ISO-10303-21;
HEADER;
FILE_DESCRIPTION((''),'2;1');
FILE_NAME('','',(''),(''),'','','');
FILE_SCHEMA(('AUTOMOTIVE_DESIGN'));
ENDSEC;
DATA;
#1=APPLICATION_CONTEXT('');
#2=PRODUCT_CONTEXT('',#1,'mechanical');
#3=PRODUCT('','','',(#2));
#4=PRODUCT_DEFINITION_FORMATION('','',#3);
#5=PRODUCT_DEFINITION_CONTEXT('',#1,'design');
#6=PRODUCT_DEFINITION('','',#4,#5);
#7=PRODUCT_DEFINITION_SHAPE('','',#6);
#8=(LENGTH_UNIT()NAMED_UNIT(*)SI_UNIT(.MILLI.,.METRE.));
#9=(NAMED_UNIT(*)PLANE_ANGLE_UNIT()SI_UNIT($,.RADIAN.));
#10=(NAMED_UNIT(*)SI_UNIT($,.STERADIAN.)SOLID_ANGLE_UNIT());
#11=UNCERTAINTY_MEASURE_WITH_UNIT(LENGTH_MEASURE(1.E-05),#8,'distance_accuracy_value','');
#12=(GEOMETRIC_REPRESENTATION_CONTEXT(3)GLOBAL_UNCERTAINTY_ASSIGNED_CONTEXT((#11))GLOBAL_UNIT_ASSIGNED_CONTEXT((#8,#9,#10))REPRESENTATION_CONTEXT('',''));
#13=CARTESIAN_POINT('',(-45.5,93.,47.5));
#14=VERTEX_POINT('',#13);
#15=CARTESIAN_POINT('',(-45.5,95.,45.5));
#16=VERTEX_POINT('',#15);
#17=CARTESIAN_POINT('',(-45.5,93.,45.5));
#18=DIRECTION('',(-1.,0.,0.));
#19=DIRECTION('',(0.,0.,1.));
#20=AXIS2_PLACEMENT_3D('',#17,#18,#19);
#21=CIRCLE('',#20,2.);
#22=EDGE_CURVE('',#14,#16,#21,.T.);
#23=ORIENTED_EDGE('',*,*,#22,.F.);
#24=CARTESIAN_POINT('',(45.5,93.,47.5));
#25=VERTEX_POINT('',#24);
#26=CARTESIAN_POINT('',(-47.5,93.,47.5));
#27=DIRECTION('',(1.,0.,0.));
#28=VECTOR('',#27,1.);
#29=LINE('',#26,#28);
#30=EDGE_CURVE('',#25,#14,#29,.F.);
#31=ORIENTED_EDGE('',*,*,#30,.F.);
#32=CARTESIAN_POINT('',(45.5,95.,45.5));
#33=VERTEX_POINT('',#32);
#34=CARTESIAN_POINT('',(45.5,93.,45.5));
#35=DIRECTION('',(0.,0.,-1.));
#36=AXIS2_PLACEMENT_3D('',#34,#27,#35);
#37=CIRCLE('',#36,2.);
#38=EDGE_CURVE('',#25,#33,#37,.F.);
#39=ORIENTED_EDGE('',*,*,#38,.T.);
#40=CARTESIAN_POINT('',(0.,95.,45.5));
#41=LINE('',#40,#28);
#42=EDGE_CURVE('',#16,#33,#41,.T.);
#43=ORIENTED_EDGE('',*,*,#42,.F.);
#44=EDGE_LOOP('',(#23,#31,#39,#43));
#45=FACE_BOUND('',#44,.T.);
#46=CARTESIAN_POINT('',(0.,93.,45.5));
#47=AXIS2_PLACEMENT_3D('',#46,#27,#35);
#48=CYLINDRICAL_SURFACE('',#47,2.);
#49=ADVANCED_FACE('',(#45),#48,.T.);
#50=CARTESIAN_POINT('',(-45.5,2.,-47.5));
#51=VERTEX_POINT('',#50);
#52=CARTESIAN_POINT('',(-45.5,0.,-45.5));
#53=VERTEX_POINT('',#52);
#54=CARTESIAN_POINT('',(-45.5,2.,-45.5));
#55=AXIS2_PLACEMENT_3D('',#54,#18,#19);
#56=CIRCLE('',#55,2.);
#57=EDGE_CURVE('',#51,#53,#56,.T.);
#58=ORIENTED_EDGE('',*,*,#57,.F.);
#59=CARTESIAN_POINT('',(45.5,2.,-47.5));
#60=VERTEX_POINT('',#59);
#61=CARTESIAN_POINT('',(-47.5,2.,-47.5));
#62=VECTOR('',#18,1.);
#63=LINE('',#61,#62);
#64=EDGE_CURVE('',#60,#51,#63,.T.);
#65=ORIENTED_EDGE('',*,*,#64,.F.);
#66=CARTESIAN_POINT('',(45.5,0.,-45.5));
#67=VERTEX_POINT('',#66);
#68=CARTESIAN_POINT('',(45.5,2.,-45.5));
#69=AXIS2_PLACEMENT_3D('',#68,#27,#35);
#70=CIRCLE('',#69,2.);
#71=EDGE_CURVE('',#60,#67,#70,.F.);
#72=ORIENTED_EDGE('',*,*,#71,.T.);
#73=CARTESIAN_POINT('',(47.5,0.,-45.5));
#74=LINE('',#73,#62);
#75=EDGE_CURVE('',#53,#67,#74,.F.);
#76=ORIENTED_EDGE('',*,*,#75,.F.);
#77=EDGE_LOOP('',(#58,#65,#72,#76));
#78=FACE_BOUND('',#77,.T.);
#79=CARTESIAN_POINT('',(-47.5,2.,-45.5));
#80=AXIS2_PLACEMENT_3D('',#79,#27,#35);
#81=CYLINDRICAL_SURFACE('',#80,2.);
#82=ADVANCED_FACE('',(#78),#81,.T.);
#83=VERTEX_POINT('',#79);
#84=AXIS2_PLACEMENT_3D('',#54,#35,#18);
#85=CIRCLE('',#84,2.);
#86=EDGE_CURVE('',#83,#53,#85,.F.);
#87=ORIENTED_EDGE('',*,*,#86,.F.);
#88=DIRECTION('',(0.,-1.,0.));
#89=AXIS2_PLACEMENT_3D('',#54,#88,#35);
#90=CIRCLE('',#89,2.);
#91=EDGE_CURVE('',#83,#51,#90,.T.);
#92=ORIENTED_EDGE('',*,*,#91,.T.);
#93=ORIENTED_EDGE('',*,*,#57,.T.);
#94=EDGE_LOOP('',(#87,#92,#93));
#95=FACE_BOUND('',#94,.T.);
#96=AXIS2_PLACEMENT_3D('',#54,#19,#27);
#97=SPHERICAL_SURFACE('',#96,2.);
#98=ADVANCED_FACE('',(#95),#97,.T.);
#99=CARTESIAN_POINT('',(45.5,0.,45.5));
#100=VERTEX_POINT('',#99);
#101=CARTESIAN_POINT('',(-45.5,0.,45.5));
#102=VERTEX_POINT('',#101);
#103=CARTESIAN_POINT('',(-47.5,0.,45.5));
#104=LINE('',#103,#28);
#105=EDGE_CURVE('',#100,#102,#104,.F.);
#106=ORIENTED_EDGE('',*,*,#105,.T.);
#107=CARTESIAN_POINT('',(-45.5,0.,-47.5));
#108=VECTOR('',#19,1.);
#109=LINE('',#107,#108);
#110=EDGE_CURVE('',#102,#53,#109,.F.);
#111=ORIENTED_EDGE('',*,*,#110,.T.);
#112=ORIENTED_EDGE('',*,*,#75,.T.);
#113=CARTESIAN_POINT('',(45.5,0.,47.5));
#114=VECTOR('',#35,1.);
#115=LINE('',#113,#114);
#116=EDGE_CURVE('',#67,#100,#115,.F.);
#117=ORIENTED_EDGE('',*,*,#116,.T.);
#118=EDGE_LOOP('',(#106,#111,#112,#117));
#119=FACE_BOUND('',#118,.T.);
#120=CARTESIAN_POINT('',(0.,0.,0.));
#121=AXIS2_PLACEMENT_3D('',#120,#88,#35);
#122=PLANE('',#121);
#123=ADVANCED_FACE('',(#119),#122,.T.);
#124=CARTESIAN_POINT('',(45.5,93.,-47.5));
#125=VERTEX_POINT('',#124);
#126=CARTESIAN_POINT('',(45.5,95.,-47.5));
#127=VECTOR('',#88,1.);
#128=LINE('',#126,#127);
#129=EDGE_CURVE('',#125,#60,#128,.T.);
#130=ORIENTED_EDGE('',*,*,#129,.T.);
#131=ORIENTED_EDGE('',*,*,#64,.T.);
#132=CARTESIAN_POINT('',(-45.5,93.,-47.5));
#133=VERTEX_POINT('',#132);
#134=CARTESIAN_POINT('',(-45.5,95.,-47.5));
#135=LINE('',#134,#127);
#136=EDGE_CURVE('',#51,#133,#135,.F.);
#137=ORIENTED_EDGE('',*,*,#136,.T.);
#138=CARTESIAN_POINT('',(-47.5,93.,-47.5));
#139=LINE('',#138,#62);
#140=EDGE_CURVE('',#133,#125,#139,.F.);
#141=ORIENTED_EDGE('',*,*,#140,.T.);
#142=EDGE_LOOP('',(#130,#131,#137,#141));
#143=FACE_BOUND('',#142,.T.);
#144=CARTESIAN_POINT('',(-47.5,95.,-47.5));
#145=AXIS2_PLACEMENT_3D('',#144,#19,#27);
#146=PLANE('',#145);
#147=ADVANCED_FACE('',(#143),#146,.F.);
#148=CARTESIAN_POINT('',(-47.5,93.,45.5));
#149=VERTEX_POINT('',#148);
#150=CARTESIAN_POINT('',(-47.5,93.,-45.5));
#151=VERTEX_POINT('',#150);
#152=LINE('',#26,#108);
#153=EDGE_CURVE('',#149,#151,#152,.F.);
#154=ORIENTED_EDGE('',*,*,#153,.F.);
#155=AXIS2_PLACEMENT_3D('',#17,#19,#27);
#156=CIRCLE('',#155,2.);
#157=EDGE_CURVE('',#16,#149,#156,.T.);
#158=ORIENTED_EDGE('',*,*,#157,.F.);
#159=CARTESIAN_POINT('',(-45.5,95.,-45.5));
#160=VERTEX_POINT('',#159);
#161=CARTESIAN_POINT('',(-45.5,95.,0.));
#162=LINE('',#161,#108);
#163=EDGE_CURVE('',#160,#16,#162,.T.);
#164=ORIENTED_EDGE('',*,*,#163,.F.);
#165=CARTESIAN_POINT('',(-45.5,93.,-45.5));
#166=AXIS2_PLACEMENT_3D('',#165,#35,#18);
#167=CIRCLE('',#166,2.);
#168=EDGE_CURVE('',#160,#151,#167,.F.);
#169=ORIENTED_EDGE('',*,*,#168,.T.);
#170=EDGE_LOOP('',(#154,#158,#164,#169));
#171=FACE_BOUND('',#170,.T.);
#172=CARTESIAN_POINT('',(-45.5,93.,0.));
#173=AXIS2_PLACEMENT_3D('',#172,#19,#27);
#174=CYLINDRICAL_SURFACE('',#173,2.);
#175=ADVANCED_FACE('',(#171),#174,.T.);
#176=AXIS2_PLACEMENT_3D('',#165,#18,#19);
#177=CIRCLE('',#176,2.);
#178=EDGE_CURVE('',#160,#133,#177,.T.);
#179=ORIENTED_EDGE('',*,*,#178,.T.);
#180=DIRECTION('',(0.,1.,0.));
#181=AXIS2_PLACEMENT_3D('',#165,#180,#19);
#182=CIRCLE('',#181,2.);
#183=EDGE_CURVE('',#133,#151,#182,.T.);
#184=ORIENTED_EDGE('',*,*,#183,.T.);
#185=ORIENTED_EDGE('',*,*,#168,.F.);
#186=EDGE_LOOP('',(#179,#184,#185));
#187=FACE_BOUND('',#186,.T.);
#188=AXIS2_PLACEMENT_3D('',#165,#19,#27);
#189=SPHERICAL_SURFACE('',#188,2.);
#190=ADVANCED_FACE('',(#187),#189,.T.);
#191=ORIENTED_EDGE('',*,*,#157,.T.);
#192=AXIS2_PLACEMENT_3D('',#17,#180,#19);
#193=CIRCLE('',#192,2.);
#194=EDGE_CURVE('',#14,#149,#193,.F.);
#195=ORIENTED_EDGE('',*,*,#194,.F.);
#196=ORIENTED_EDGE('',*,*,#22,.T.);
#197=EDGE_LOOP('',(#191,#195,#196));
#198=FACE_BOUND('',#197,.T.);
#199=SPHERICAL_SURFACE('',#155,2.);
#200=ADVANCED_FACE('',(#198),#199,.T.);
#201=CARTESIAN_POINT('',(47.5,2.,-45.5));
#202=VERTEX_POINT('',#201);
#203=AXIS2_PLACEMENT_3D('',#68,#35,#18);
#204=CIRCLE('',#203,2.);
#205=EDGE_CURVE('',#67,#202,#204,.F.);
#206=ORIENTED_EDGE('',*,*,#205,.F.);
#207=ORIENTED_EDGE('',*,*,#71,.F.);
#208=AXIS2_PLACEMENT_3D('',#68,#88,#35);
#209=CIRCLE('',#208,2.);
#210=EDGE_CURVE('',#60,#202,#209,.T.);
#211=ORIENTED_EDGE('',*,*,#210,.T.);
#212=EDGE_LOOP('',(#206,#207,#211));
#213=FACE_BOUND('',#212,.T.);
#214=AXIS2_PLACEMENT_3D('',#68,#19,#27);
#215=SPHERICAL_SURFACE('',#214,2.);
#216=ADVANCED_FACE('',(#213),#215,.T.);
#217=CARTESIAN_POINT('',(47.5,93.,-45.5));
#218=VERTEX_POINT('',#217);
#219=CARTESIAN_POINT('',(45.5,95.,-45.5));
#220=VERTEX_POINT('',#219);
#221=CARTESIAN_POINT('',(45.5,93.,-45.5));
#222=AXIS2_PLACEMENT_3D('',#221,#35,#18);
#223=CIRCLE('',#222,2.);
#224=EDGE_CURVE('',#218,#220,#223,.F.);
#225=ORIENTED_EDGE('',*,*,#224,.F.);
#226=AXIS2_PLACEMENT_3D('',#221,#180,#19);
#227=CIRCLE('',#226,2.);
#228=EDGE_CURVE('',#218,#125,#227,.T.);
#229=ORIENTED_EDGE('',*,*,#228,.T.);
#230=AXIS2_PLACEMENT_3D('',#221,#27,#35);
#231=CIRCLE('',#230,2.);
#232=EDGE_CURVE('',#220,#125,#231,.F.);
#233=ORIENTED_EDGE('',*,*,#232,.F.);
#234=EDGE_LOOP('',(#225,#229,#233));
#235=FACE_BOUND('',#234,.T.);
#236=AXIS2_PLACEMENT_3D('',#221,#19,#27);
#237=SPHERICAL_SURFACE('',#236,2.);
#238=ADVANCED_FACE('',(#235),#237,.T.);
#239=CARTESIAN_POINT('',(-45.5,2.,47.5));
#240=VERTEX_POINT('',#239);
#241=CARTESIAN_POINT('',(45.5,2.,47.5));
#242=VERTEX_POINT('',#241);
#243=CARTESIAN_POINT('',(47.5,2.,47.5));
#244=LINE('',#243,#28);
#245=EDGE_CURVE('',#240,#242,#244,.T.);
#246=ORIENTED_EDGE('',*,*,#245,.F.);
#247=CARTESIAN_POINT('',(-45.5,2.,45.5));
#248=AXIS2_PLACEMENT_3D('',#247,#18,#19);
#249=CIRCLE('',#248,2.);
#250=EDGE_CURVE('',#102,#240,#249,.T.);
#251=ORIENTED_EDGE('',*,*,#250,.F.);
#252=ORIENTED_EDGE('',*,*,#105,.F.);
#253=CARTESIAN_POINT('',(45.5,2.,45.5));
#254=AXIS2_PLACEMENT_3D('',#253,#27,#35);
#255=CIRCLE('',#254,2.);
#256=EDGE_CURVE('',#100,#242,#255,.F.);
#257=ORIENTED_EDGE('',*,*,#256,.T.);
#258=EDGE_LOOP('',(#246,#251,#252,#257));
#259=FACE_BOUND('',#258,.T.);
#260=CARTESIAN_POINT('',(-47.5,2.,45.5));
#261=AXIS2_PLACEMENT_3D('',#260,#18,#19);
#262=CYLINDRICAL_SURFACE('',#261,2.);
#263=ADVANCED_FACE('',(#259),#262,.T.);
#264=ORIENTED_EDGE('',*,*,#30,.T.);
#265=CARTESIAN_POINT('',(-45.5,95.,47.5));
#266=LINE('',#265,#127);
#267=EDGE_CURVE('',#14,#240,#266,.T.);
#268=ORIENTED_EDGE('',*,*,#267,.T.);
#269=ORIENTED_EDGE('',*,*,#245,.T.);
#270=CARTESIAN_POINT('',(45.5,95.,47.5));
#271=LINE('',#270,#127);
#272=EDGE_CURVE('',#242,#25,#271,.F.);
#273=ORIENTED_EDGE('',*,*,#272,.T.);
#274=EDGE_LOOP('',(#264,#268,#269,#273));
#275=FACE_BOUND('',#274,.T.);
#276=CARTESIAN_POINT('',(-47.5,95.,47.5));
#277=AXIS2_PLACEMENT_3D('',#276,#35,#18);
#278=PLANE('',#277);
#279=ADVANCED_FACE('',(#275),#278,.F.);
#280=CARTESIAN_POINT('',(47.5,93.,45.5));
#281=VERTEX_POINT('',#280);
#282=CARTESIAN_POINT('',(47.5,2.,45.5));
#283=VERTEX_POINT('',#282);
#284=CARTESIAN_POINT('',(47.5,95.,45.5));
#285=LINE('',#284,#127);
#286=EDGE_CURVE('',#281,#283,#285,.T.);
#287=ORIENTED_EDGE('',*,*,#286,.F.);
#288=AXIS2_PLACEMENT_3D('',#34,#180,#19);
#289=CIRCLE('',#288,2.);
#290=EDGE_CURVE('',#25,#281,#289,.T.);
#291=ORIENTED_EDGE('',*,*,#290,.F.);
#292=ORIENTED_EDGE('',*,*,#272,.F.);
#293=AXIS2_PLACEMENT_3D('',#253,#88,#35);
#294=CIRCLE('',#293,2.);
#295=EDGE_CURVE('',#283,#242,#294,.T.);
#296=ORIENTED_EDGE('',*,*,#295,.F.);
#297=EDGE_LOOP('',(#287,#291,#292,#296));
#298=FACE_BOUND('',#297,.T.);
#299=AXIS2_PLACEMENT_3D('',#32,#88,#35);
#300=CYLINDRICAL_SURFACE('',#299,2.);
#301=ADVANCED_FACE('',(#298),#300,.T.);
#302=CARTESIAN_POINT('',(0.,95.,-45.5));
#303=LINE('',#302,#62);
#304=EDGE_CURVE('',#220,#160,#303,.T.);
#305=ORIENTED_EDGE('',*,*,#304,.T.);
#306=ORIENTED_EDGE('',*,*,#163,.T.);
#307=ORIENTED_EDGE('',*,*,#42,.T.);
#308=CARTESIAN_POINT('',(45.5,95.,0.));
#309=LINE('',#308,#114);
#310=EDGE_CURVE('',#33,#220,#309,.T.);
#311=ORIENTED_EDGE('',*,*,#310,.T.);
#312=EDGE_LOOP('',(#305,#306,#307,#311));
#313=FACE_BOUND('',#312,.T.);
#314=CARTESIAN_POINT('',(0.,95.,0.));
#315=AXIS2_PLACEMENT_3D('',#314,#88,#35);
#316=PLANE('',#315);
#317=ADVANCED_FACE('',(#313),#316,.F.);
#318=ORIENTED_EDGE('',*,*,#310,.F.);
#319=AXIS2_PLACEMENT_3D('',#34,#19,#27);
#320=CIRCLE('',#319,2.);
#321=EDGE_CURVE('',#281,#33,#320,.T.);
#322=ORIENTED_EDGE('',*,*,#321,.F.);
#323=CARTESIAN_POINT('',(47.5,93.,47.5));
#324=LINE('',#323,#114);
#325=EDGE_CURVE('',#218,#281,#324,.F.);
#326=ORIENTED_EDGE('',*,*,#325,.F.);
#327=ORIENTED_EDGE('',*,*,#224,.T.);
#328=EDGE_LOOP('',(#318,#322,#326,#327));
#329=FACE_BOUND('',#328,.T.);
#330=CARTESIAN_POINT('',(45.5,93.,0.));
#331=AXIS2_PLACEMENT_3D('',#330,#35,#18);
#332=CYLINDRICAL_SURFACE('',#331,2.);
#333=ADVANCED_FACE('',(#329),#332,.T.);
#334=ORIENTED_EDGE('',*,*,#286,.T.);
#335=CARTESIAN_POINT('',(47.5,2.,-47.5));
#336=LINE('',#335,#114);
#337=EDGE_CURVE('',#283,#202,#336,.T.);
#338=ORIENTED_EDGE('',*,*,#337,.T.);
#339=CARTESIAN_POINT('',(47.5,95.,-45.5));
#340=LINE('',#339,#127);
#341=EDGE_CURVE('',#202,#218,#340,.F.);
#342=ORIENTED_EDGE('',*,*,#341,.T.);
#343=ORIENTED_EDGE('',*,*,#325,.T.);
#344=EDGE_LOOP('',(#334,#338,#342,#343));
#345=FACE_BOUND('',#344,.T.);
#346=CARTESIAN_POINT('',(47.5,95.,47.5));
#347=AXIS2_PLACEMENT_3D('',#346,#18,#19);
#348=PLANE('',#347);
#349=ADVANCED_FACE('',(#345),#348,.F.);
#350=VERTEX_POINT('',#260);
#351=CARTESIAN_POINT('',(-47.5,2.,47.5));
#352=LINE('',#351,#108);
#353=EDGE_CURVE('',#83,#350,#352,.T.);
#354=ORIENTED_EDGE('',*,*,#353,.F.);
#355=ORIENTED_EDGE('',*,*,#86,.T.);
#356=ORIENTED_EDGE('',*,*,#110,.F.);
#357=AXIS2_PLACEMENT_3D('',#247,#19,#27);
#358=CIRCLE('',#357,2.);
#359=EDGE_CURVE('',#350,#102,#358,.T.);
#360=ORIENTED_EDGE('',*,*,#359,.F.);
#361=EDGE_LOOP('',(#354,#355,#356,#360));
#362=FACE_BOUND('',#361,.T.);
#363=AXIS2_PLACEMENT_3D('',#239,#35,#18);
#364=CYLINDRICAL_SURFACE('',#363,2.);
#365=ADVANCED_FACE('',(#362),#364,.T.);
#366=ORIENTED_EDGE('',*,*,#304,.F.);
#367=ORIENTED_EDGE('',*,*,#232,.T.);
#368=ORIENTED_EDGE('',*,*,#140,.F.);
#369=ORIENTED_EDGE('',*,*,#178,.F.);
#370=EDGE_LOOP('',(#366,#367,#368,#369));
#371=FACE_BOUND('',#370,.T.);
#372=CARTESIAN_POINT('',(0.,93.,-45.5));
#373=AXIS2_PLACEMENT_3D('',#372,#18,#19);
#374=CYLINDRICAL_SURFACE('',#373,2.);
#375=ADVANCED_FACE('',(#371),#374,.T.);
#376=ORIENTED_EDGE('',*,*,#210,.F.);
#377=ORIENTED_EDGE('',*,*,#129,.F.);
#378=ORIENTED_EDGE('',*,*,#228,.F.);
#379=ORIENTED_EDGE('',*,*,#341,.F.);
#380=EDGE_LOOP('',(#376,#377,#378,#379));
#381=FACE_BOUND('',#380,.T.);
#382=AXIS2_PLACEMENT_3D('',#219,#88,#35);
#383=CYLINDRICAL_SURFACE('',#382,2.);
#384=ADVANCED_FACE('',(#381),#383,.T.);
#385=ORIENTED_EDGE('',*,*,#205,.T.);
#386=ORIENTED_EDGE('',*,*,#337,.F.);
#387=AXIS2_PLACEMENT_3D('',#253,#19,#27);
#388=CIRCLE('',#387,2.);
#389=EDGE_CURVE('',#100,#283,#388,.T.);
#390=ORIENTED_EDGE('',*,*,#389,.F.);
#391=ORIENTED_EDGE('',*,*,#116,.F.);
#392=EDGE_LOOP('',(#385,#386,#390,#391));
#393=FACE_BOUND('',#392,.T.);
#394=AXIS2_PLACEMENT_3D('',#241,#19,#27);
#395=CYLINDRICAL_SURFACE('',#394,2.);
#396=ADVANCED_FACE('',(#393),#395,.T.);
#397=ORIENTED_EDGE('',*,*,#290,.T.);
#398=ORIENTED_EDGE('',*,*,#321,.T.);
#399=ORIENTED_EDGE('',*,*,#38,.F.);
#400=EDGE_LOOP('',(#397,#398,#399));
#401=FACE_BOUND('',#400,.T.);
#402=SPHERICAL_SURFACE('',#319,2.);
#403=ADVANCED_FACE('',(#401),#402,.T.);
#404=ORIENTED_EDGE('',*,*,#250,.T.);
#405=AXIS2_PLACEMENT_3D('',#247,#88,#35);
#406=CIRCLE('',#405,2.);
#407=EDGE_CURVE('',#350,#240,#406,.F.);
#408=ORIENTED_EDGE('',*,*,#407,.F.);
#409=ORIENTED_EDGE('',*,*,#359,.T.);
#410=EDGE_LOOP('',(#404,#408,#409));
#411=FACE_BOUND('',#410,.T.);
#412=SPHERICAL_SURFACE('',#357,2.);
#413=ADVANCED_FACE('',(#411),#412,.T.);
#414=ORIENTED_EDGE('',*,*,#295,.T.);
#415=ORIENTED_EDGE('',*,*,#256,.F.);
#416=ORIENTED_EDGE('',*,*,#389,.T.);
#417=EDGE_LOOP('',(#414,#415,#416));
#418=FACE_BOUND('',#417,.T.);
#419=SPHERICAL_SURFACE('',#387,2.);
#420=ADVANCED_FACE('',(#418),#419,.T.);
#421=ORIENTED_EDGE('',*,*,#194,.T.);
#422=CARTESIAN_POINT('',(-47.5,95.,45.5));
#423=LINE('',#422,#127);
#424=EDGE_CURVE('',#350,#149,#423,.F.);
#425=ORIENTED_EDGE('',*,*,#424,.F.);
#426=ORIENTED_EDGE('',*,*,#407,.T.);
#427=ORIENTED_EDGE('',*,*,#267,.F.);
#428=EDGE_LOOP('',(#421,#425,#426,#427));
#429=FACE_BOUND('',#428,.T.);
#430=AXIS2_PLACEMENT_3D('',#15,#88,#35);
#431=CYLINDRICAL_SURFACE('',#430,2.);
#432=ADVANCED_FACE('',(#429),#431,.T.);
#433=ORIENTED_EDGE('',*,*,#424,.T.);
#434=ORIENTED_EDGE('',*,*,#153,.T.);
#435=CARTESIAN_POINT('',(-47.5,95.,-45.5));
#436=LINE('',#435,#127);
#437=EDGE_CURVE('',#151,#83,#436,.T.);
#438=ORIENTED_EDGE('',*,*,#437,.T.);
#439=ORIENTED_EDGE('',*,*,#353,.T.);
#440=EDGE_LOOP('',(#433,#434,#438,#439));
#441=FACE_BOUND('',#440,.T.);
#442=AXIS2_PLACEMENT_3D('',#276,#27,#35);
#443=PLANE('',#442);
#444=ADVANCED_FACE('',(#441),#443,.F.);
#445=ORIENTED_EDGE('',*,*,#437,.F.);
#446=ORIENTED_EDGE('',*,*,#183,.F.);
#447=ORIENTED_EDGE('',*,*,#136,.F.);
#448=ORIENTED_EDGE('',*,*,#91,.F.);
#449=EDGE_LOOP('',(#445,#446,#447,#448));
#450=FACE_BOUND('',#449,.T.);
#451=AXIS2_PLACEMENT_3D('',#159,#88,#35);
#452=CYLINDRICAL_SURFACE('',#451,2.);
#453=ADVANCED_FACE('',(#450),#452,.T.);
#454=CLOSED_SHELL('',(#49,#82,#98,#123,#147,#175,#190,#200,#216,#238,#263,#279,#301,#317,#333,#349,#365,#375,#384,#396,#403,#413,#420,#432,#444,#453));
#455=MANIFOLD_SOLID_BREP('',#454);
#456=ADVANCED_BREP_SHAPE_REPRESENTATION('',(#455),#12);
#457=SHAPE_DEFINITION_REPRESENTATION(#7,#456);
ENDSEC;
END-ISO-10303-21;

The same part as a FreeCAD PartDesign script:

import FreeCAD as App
import Part
import Sketcher
Q = App.Units.Quantity

doc = App.newDocument("Part")
params = doc.addObject("Spreadsheet::Sheet", "Params")
for row, (alias, value) in enumerate([
    ("sketch1_width", "95 mm"),
    ("pad1_length", "95 mm"),
    ("fillet_radius", "2 mm"),
], start=1):
    params.set(f"A{row}", alias)
    params.set(f"B{row}", "=" + value)
    params.setAlias(f"B{row}", alias)

body = doc.addObject("PartDesign::Body", "Body")

# Sketch on XZ plane
sketch1 = body.newObject("Sketcher::SketchObject", "Sketch")
sketch1.AttachmentSupport = (doc.getObject("XZ_Plane"), [""])
sketch1.MapMode = "FlatFace"
sketch1.addGeometry(Part.LineSegment(App.Vector(-48, -48, 0), App.Vector(-48, 48, 0)), False)
sketch1.addGeometry(Part.LineSegment(App.Vector(-48, 48, 0), App.Vector(48, 48, 0)), False)
sketch1.addGeometry(Part.LineSegment(App.Vector(48, 48, 0), App.Vector(48, -48, 0)), False)
sketch1.addGeometry(Part.LineSegment(App.Vector(48, -48, 0), App.Vector(-48, -48, 0)), False)
sketch1.addConstraint(Sketcher.Constraint("Coincident", 0, 2, 1, 1))
sketch1.addConstraint(Sketcher.Constraint("Coincident", 1, 2, 2, 1))
sketch1.addConstraint(Sketcher.Constraint("Coincident", 2, 2, 3, 1))
sketch1.addConstraint(Sketcher.Constraint("Coincident", 3, 2, 0, 1))
sketch1.addConstraint(Sketcher.Constraint("Vertical", 0))
sketch1.addConstraint(Sketcher.Constraint("Horizontal", 1))
sketch1.addConstraint(Sketcher.Constraint("Vertical", 2))
sketch1.addConstraint(Sketcher.Constraint("Horizontal", 3))
sketch1.addConstraint(Sketcher.Constraint("Symmetric", 0, 2, 2, 2, -1, 1))
sketch1.addConstraint(Sketcher.Constraint("Equal", 3, 0))
sketch1.addConstraint(Sketcher.Constraint("DistanceX", 1, 1, 1, 2, Q("95 mm")))
sketch1.setExpression("Constraints[10]", "Params.sketch1_width")
pad1 = body.newObject("PartDesign::Pad", "Pad")
pad1.Profile = sketch1
pad1.setExpression("Length", "Params.pad1_length")
pad1.Reversed = True
doc.recompute()

fillet = body.newObject("PartDesign::Fillet", "Fillet")
fillet.Base = (pad1, ["Edge1"])
fillet.UseAllEdges = True
fillet.setExpression("Radius", "Params.fillet_radius")

doc.recompute()
